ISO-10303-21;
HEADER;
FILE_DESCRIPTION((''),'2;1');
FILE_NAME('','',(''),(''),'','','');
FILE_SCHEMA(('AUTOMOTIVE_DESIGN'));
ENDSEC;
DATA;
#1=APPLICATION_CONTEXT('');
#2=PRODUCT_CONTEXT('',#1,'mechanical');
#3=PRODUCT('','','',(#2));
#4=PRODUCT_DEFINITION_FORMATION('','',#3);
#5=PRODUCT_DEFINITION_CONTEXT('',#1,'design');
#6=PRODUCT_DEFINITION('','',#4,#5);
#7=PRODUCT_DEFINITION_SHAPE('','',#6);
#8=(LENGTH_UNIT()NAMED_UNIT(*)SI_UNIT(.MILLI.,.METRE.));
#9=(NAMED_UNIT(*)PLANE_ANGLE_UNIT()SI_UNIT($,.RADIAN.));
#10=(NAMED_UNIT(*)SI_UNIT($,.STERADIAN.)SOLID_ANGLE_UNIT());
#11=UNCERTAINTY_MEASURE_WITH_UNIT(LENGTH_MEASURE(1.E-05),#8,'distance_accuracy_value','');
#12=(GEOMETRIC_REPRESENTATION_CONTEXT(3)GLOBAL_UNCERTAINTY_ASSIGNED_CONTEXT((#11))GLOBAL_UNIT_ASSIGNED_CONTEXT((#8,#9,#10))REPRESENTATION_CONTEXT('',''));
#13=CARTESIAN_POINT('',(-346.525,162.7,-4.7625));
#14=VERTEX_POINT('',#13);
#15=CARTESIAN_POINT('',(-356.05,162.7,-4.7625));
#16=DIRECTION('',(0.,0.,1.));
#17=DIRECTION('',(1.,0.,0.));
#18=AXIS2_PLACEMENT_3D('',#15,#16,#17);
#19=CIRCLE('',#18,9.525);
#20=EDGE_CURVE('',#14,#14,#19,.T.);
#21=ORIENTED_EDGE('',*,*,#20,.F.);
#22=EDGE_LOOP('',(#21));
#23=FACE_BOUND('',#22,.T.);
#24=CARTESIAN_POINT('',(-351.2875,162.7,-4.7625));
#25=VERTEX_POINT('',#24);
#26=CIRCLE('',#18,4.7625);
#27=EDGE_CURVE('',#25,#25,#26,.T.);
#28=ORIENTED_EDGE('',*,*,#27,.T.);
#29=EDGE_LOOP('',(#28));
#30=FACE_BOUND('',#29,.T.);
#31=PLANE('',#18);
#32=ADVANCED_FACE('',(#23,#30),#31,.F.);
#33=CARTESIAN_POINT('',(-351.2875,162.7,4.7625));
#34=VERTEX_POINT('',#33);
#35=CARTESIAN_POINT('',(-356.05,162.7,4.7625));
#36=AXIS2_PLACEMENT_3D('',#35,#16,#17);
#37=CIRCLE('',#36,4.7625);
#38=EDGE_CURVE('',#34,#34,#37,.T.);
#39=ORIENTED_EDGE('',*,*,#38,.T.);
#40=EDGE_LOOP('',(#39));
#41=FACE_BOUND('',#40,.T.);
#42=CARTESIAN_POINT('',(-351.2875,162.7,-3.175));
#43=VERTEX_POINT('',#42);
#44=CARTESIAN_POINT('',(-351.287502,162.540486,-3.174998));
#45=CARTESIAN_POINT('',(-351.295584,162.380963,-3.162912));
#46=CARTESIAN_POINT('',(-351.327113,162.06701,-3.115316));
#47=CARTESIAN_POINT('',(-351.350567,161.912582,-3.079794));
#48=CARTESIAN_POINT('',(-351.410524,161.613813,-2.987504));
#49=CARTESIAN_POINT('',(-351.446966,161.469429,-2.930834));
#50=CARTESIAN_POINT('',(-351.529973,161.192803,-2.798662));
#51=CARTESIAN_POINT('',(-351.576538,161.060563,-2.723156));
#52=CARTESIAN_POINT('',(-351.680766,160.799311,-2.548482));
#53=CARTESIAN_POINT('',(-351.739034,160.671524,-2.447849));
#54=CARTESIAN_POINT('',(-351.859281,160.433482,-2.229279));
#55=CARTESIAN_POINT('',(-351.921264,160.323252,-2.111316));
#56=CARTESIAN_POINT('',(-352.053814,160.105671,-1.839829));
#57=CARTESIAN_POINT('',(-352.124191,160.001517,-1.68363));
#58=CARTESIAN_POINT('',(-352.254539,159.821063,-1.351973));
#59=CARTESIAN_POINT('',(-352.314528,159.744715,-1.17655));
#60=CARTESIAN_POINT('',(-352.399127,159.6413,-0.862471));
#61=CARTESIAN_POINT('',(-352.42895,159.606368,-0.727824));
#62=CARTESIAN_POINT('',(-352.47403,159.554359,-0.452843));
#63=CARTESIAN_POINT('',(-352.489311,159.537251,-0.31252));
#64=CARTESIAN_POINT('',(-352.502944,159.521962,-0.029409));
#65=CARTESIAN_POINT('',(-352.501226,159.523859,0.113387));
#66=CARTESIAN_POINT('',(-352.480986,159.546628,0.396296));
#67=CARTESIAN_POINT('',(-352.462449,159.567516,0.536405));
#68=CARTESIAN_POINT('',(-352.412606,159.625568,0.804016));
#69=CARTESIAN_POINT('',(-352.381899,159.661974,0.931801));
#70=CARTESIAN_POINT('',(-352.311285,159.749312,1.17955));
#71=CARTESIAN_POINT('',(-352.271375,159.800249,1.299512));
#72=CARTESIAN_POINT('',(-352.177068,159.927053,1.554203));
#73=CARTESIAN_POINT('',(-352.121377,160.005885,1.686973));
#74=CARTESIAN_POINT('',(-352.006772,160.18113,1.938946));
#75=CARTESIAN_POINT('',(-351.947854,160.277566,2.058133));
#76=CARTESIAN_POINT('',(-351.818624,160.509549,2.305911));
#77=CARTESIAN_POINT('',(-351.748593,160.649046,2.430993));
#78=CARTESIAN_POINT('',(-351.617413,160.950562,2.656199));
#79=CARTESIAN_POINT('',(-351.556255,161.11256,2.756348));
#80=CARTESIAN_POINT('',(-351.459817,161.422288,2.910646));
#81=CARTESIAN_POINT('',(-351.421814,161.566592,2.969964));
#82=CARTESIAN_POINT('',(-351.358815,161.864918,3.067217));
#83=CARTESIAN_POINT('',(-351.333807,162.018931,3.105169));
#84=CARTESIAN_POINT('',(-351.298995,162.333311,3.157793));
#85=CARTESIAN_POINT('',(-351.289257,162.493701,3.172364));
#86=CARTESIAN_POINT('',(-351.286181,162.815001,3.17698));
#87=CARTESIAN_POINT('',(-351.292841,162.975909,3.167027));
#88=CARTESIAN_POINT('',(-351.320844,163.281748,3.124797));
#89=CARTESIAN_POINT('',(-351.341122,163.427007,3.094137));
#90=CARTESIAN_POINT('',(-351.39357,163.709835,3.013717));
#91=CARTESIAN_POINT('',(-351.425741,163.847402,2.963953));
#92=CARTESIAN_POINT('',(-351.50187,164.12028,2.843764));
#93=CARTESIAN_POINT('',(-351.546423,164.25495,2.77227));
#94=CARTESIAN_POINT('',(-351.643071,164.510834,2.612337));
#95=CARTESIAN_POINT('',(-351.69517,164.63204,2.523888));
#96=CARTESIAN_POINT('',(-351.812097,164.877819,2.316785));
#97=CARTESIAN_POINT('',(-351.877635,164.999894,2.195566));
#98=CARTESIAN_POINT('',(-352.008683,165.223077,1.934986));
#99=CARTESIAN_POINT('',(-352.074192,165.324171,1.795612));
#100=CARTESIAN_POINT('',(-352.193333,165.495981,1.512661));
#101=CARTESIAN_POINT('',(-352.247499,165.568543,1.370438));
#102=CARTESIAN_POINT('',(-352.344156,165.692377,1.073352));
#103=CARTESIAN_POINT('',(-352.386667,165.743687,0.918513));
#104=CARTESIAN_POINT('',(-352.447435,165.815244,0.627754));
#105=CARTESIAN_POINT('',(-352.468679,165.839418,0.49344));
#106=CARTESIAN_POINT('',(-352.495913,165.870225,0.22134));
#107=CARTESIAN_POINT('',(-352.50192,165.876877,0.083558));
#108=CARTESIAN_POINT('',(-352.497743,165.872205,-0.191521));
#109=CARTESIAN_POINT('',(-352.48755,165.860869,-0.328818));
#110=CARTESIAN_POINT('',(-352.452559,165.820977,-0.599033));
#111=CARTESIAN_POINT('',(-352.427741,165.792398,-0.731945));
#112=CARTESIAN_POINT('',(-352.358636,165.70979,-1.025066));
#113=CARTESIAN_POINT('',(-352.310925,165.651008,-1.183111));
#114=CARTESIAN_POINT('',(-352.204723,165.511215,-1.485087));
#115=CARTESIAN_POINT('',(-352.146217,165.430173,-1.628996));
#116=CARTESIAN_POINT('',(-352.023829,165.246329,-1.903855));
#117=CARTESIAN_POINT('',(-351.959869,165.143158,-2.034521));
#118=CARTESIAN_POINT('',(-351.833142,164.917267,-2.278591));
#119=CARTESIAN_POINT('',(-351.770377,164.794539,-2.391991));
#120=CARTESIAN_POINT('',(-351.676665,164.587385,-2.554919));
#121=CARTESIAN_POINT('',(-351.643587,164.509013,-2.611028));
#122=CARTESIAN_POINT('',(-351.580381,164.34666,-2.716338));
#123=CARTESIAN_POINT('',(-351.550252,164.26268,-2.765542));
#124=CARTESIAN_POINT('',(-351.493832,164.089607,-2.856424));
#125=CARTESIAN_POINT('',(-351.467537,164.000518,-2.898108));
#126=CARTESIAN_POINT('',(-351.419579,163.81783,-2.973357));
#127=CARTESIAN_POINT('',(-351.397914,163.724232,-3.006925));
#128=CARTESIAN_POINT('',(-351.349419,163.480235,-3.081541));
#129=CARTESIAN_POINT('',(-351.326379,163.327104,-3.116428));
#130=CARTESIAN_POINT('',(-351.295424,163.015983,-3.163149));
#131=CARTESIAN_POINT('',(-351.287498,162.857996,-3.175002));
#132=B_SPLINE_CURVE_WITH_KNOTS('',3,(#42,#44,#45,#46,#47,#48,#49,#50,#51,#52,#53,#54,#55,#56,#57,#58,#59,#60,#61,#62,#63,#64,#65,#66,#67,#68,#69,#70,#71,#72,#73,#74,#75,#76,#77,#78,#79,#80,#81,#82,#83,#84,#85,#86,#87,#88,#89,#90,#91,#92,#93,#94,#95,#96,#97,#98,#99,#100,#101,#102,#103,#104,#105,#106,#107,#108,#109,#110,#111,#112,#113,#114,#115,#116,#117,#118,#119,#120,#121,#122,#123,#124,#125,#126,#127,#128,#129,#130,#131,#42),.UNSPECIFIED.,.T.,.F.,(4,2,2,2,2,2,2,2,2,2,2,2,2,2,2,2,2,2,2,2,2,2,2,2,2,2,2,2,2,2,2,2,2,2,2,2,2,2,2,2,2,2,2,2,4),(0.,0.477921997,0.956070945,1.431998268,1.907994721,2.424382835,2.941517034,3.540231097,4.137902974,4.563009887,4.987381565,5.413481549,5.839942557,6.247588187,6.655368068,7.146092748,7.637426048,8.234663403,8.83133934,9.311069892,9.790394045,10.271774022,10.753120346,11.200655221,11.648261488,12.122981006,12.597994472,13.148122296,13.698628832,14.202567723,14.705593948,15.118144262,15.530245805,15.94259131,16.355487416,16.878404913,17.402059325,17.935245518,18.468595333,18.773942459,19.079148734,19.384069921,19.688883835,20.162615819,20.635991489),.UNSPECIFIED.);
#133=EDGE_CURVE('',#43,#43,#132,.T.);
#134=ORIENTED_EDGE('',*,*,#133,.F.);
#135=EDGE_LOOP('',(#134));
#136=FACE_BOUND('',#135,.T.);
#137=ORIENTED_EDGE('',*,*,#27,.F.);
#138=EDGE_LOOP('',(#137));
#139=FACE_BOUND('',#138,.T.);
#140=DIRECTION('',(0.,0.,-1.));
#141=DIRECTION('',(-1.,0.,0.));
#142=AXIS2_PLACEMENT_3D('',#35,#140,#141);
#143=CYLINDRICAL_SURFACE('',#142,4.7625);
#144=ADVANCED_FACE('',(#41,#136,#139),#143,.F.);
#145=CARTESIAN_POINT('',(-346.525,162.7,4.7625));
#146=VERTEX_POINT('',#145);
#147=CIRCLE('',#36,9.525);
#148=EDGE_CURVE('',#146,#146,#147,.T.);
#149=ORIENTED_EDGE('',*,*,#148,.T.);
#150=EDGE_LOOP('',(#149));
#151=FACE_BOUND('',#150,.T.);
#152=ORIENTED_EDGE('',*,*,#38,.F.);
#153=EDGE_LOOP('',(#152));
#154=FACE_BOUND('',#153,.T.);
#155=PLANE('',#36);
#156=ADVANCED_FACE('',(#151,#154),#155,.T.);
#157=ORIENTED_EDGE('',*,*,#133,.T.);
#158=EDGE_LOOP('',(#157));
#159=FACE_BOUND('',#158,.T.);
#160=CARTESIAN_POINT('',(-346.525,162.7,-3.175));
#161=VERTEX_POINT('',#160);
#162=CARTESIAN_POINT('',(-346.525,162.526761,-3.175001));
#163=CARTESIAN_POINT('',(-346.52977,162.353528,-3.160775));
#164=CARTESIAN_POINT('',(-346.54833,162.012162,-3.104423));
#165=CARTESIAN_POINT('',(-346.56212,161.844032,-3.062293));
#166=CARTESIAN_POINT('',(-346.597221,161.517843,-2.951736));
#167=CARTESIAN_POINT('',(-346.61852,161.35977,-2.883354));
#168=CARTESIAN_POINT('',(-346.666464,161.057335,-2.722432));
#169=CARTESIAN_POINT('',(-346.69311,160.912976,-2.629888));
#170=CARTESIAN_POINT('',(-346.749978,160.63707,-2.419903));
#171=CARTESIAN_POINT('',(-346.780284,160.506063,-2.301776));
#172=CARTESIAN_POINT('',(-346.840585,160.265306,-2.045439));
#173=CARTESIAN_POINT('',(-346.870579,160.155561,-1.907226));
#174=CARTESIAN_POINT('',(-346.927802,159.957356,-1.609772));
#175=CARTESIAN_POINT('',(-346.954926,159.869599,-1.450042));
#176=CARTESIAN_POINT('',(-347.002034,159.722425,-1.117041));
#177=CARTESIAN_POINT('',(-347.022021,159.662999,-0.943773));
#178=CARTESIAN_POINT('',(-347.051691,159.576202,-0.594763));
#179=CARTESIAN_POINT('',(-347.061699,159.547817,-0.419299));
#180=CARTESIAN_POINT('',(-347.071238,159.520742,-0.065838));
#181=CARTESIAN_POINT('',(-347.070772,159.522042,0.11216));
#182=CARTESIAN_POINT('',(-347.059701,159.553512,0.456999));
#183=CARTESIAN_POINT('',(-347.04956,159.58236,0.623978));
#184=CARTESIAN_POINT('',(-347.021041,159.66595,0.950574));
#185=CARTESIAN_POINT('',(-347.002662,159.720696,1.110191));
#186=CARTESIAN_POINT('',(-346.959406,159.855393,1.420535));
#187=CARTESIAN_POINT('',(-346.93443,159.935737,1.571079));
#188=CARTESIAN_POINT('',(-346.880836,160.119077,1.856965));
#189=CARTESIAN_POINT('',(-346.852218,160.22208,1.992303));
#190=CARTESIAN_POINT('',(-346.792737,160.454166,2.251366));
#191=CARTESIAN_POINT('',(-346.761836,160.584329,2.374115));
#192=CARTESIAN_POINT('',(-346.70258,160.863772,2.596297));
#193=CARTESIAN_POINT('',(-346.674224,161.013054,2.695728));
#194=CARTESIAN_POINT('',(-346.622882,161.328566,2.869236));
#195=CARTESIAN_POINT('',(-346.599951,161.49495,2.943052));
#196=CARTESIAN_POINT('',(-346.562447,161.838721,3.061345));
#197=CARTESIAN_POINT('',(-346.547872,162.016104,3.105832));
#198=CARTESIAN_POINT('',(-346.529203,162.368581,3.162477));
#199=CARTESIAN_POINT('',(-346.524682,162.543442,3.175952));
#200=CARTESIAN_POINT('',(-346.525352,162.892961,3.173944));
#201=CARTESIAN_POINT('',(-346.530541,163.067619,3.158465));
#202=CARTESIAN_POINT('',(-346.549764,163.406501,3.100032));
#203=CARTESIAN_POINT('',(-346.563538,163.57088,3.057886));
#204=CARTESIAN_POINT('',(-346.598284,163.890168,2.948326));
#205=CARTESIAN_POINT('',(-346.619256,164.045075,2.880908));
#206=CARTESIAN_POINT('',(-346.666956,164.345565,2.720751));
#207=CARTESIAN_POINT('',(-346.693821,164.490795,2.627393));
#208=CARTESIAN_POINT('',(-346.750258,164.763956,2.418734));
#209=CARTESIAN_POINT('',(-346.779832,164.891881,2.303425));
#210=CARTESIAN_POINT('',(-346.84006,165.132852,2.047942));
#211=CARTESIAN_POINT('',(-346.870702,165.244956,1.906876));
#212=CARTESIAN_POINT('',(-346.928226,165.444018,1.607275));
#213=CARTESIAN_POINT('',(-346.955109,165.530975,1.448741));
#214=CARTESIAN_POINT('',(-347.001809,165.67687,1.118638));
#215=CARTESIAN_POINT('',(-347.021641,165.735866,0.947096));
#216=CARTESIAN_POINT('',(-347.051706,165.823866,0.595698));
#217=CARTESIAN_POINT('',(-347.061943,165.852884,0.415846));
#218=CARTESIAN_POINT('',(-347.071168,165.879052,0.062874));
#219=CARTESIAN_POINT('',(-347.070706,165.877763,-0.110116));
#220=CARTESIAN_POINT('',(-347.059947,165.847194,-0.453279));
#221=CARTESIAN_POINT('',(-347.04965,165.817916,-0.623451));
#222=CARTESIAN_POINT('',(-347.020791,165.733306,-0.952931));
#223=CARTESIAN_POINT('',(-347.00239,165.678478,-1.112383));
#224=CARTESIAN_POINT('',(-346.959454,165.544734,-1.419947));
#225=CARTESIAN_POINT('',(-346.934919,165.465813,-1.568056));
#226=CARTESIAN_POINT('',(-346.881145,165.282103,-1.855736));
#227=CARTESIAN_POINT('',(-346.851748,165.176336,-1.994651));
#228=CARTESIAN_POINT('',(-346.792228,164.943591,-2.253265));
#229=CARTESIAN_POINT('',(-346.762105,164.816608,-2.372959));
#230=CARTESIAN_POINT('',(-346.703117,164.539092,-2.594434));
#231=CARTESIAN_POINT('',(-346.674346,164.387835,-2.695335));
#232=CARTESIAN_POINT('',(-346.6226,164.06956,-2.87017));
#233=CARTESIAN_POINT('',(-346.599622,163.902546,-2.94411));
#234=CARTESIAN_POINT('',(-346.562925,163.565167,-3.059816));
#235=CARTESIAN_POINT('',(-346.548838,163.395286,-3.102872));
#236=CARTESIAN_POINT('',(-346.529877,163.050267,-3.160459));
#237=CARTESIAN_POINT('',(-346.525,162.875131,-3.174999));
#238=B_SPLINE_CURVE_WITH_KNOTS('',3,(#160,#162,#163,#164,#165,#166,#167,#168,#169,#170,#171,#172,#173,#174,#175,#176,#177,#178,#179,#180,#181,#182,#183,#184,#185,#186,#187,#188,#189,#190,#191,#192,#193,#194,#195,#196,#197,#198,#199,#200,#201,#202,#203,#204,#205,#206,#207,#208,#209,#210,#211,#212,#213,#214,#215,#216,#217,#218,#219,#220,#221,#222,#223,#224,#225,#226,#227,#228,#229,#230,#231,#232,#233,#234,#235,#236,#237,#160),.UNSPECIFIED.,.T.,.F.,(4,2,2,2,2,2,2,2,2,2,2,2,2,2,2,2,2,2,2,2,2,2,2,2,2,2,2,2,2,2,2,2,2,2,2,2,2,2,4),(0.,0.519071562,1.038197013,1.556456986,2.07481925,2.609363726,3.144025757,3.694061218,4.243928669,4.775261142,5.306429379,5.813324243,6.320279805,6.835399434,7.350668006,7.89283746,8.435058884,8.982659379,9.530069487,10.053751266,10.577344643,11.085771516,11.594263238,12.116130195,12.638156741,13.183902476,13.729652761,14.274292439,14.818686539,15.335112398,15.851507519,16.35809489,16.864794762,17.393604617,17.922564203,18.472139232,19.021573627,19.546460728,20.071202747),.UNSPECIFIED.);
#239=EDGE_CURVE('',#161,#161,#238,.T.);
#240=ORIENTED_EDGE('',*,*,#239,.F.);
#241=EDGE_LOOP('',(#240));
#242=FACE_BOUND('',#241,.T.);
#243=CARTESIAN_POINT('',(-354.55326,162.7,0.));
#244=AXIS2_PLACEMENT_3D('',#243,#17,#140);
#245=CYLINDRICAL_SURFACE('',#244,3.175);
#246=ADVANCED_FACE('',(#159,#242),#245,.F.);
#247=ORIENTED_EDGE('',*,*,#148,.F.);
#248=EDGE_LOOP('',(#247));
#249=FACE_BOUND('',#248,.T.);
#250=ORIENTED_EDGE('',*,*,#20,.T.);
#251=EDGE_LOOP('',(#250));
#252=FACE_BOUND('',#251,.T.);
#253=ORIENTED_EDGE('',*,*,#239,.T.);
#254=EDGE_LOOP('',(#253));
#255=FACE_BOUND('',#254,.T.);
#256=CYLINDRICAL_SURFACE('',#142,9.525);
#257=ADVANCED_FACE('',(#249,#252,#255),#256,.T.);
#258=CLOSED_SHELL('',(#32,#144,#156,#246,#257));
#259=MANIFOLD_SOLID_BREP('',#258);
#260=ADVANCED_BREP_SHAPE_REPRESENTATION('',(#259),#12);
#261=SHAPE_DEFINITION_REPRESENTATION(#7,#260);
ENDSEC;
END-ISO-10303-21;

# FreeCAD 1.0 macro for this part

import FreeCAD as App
import Part
import Sketcher

V = App.Vector
Q = App.Units.Quantity

doc = App.newDocument("Part")
body = doc.addObject("PartDesign::Body", "Body")

# Sketch on XY plane
sketch1 = body.newObject("Sketcher::SketchObject", "Sketch")
sketch1.AttachmentSupport = (doc.getObject("XY_Plane"), [""])
sketch1.MapMode = "FlatFace"
sketch1.addGeometry(Part.Circle(V(-356.05, 162.7, 0), V(0, 0, 1), 9.525), False)
sketch1.addGeometry(Part.Circle(V(-356.05, 162.7, 0), V(0, 0, 1), 4.7625), False)
sketch1.addConstraint(Sketcher.Constraint("Coincident", 1, 3, 0, 3))
sketch1.addConstraint(Sketcher.Constraint("Diameter", 0, Q("0.75 in")))
sketch1.addConstraint(Sketcher.Constraint("Diameter", 1, Q("0.375 in")))
sketch1.addConstraint(Sketcher.Constraint("DistanceX", 0, 3, -1, 1, Q("356.05 mm")))
sketch1.addConstraint(Sketcher.Constraint("DistanceY", -1, 1, 0, 3, Q("162.7 mm")))
pad1 = body.newObject("PartDesign::Pad", "Pad")
pad1.Profile = sketch1
pad1.Length = Q("0.375 in")
pad1.Midplane = True

# Sketch on YZ plane
sketch2 = body.newObject("Sketcher::SketchObject", "Sketch001")
sketch2.AttachmentSupport = (doc.getObject("YZ_Plane"), [""])
sketch2.MapMode = "FlatFace"
sketch2.addGeometry(Part.Circle(V(162.7, 0, 0), V(0, 0, 1), 3.175), False)
sketch2.addConstraint(Sketcher.Constraint("PointOnObject", 0, 3, -1))
sketch2.addConstraint(Sketcher.Constraint("Diameter", 0, Q("0.25 in")))
sketch2.addConstraint(Sketcher.Constraint("DistanceX", -1, 1, 0, 3, Q("162.7 mm")))
pocket1 = body.newObject("PartDesign::Pocket", "Pocket")
pocket1.Profile = sketch2
pocket1.Length = 354.55326

doc.recompute()
